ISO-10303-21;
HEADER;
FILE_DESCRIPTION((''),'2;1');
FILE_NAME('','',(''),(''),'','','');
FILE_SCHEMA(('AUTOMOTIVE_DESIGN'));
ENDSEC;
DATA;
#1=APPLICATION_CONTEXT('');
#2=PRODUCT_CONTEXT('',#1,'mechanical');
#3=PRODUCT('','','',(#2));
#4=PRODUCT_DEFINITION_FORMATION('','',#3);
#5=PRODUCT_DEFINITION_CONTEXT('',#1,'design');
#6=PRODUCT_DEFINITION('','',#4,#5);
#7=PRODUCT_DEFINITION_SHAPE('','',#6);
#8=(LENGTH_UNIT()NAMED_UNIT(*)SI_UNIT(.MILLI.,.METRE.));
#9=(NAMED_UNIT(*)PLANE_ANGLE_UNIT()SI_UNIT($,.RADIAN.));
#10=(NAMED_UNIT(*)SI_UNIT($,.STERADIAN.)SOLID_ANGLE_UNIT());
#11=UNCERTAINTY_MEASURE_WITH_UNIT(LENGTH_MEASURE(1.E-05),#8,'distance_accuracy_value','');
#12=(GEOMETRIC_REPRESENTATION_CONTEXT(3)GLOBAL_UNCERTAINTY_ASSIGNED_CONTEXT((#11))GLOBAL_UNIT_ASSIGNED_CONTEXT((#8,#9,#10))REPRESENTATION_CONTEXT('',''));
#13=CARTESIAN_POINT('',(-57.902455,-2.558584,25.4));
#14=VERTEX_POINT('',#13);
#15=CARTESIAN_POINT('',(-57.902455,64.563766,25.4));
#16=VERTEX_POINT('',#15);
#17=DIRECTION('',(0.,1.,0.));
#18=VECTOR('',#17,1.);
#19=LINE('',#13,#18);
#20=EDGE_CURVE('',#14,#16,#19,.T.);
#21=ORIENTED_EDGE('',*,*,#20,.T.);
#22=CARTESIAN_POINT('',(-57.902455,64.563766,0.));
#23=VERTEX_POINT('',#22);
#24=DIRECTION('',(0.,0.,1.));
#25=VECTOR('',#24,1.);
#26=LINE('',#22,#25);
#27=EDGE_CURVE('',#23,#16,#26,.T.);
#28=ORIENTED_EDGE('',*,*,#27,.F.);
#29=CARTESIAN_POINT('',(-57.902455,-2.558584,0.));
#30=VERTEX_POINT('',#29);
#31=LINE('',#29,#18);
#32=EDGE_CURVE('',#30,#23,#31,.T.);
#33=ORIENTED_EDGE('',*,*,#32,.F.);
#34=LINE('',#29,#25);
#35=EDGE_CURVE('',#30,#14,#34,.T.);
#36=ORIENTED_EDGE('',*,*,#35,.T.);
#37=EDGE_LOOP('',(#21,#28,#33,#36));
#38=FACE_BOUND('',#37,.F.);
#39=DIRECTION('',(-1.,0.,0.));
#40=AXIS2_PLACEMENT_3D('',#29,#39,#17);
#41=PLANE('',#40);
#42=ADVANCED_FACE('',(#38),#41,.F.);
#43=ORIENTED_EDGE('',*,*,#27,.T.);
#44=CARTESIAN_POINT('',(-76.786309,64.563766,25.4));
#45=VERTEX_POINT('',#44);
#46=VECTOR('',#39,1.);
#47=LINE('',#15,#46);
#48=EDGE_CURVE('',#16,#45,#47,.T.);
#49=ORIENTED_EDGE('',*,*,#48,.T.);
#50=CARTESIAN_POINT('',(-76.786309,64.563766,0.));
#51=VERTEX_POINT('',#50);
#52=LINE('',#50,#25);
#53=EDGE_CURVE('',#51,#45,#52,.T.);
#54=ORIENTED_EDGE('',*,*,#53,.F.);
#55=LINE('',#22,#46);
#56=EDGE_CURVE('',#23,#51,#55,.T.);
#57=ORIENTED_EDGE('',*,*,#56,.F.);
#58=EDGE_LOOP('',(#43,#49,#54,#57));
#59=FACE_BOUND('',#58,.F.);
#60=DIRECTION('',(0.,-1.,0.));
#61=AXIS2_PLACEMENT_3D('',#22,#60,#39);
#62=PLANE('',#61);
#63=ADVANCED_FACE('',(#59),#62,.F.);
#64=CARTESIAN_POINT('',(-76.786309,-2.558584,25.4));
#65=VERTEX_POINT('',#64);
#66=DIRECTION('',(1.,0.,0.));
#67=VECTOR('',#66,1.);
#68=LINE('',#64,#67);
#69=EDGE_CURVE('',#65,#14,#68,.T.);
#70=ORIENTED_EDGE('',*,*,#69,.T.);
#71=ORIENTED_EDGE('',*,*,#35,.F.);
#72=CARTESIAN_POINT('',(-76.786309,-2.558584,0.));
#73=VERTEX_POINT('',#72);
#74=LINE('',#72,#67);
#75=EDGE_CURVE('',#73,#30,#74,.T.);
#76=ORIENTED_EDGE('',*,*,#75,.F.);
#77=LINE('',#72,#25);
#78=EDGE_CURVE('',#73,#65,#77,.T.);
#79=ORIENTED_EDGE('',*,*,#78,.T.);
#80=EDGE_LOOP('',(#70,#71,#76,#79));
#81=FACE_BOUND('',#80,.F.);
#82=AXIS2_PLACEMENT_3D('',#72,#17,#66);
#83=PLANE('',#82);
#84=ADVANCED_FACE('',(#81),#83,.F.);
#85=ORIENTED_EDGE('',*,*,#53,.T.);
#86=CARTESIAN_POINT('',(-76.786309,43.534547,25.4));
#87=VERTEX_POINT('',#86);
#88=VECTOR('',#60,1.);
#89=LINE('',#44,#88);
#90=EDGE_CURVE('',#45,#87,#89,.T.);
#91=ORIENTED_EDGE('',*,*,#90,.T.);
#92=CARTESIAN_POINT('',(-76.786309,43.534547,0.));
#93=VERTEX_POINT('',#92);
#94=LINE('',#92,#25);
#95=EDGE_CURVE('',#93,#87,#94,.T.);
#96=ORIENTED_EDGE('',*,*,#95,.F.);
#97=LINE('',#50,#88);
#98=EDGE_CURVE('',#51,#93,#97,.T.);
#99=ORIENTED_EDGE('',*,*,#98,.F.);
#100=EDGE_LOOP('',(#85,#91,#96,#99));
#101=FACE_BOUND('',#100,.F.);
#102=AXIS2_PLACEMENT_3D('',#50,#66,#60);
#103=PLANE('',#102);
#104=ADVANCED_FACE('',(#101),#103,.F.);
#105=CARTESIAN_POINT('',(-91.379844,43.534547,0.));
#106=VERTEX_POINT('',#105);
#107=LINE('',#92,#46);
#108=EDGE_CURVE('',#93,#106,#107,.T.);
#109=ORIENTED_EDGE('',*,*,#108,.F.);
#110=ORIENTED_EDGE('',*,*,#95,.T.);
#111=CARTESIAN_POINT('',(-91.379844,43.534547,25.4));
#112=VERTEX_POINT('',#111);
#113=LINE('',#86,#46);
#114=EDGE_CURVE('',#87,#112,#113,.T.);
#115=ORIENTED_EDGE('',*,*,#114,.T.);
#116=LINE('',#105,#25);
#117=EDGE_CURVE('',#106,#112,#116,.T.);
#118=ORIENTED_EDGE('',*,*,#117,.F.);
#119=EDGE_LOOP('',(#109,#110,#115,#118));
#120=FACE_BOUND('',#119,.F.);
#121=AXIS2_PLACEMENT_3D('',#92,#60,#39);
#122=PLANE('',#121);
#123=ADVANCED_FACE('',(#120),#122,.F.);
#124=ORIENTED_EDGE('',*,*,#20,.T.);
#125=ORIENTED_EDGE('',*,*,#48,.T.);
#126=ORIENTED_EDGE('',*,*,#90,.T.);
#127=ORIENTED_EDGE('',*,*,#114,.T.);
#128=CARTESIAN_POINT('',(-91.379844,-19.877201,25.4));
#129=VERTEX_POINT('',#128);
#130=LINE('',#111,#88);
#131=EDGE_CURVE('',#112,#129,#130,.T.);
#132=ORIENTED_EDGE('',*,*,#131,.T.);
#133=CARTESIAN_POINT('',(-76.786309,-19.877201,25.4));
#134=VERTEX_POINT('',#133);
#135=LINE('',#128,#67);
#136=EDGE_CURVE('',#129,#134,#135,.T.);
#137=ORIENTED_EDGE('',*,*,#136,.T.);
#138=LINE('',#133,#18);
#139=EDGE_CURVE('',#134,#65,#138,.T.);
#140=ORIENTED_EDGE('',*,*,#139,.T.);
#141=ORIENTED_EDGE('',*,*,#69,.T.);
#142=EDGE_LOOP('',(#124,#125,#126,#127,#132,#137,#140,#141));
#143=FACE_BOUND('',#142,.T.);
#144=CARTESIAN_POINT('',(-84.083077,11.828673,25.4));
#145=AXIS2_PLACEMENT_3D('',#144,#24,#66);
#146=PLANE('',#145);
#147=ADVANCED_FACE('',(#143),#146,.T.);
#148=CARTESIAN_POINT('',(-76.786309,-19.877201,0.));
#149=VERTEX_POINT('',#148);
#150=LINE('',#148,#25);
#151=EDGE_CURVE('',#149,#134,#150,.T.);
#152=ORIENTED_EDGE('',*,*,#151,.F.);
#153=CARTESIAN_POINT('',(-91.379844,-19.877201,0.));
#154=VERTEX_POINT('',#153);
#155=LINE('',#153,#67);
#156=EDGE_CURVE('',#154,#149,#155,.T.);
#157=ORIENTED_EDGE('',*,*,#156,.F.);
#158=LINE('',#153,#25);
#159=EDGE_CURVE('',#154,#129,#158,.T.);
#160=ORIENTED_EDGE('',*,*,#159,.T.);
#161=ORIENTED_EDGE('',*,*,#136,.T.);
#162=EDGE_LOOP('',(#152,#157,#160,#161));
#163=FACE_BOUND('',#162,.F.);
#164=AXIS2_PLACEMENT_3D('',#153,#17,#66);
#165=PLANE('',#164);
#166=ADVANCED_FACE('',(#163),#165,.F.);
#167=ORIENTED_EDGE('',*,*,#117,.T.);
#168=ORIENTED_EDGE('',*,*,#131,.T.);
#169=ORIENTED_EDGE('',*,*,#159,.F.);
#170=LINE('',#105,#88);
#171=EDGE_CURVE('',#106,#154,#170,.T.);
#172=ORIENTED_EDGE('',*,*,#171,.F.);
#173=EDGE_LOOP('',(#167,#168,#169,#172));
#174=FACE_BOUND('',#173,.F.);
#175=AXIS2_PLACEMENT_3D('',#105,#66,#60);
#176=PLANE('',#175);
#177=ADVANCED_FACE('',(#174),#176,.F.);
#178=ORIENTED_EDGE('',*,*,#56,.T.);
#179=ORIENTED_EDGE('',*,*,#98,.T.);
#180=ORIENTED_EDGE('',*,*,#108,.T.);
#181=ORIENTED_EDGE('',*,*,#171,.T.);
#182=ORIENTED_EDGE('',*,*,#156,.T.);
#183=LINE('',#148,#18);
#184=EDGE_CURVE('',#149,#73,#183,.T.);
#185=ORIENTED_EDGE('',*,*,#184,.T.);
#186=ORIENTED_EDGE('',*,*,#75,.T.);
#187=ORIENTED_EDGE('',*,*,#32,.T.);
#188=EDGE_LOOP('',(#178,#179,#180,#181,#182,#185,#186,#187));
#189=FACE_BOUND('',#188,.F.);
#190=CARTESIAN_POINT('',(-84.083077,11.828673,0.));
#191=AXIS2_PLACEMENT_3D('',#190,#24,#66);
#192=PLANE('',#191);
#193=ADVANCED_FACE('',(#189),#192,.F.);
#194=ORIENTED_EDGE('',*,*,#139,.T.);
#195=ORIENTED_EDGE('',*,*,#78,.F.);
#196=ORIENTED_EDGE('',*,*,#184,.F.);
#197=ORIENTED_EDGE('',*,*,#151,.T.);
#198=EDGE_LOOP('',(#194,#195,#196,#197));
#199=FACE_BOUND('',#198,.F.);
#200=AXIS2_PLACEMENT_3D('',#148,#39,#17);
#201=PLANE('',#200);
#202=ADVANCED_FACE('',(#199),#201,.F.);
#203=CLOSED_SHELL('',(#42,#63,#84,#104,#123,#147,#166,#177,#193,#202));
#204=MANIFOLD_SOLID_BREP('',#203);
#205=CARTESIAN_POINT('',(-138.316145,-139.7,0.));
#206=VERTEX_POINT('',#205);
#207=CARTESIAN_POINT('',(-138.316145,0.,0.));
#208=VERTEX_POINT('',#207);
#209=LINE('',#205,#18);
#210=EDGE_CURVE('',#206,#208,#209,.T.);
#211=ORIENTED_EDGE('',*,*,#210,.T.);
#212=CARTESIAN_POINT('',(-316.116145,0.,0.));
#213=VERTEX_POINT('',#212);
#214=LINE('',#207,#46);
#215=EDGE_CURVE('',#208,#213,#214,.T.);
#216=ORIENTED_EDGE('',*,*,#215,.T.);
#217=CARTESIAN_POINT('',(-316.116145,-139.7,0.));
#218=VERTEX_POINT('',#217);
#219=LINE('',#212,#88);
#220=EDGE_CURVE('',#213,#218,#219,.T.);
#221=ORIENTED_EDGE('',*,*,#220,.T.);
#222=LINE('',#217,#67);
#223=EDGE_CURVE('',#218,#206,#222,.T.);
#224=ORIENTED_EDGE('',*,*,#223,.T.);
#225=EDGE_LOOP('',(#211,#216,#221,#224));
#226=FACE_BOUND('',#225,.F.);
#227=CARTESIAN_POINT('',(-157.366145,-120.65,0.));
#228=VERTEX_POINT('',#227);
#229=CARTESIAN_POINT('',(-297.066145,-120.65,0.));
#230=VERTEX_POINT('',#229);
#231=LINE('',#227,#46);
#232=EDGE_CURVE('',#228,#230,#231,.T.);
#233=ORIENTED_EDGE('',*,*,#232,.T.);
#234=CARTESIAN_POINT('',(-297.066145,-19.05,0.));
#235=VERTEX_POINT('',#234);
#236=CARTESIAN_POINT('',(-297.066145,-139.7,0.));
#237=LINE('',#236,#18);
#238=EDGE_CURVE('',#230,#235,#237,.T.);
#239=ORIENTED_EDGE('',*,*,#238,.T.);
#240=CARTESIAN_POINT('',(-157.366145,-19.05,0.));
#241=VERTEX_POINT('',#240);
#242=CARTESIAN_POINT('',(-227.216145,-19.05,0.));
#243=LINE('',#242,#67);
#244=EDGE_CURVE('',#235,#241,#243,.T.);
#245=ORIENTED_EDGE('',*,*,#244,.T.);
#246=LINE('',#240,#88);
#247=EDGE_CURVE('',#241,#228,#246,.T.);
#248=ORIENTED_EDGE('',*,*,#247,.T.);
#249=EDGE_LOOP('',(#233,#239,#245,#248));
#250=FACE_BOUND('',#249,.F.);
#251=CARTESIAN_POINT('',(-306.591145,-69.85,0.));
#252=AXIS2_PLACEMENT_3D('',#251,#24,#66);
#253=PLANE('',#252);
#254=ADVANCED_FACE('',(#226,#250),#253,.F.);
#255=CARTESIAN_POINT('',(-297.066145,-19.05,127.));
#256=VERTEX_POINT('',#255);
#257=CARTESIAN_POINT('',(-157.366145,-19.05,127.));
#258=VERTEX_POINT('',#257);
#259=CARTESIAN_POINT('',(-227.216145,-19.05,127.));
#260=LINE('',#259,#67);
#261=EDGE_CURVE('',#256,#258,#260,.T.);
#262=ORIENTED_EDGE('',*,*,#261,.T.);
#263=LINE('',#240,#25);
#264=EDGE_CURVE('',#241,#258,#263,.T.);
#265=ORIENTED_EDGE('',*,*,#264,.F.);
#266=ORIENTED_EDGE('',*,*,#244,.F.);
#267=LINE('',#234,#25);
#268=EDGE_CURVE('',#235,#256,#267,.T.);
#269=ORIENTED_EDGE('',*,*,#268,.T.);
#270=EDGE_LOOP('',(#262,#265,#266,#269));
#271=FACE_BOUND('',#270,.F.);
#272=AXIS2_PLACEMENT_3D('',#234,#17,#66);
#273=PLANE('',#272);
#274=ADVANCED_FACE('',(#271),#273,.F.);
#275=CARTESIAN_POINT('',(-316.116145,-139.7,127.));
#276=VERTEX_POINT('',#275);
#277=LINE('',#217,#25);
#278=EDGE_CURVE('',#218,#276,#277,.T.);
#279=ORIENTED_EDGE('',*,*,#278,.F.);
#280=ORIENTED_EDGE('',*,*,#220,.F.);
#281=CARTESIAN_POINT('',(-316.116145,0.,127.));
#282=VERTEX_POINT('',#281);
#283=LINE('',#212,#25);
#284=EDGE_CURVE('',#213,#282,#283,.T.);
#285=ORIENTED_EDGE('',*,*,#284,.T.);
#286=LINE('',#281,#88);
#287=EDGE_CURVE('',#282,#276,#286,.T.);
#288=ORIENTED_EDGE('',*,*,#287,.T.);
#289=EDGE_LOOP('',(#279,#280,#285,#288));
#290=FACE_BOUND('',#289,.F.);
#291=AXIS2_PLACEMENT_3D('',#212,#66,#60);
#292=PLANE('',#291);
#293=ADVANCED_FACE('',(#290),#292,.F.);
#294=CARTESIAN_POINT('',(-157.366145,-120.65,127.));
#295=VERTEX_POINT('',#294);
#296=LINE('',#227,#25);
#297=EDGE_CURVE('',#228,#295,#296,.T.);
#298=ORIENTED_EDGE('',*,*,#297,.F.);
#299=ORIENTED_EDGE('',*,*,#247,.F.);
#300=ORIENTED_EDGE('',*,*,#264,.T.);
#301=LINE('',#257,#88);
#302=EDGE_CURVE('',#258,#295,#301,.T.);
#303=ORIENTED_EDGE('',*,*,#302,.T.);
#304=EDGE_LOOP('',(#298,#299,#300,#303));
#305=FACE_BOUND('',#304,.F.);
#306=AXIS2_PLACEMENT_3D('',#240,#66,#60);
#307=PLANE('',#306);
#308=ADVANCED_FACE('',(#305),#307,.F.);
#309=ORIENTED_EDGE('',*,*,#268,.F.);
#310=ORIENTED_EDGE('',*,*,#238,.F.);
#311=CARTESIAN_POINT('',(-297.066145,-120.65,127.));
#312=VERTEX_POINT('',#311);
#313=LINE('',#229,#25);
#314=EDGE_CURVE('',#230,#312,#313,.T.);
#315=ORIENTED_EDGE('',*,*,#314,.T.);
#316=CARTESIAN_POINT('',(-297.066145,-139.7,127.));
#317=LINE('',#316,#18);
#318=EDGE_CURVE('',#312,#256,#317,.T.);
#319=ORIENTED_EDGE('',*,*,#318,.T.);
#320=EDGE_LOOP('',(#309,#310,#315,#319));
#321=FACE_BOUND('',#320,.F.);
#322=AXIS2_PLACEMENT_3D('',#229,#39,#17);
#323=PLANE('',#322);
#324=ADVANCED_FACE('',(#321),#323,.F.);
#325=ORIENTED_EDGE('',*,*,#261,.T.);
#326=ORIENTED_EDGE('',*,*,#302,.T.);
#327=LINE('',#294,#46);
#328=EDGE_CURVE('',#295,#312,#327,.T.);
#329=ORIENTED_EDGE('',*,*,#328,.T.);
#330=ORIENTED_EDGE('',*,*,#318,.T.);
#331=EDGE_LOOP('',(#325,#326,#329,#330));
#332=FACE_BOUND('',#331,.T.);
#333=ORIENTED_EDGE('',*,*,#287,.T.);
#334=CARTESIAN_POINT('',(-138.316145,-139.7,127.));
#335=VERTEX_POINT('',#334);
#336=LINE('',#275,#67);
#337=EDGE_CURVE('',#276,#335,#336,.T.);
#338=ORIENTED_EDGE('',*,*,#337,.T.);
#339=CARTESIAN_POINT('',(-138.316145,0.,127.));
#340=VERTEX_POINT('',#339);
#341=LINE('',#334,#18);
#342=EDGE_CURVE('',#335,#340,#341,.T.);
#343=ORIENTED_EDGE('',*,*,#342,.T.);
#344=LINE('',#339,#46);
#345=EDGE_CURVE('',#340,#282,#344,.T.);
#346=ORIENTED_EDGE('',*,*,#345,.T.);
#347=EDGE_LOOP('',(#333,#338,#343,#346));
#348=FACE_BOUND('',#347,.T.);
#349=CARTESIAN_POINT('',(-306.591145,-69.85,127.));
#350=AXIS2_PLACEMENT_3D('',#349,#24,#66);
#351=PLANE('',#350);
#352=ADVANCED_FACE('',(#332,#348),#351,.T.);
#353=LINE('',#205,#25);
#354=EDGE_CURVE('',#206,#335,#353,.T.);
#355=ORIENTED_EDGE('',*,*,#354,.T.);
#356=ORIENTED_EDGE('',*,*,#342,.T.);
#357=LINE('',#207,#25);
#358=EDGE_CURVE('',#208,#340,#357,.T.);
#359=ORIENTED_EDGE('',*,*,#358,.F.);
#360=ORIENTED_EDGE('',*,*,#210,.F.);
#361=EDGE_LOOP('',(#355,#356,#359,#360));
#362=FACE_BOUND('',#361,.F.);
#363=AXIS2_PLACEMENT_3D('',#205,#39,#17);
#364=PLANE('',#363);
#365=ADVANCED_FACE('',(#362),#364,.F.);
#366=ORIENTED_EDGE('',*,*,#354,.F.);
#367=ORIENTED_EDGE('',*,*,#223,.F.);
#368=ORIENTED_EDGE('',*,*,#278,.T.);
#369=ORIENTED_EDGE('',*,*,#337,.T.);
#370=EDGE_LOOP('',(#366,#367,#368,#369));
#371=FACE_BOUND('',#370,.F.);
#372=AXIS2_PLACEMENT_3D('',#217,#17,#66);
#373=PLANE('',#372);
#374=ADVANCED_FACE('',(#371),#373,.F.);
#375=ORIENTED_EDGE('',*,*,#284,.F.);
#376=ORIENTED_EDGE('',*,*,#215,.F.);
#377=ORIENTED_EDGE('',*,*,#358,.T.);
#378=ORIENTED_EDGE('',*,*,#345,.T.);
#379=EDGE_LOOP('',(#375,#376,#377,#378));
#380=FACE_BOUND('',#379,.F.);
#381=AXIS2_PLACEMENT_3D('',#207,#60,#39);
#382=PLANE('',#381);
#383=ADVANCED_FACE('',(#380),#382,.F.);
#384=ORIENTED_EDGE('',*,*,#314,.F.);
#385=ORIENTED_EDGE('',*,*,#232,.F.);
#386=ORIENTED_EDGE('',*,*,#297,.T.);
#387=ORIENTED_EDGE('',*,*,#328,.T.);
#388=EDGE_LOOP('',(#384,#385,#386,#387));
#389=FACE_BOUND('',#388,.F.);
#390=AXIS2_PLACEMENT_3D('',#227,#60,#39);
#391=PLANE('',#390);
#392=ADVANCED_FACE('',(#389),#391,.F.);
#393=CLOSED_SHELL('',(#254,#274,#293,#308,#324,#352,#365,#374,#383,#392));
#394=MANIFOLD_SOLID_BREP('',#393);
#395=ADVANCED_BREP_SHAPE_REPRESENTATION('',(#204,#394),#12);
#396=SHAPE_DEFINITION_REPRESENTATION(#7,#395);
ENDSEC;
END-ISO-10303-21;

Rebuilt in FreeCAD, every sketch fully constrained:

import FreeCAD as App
import Part
import Sketcher
from FreeCAD import Vector
Q = App.Units.Quantity

doc = App.newDocument("Part")
body = doc.addObject("PartDesign::Body", "Body")

# Sketch on XY plane
sketch1 = doc.addObject("Sketcher::SketchObject", "Sketch")
body.addObject(sketch1)
sketch1.AttachmentSupport = (doc.XY_Plane, [""])
sketch1.MapMode = "FlatFace"
sketch1.addGeometry([
    Part.LineSegment(Vector(-316, 0, 0), Vector(-316, -140, 0)),  # 0
    Part.LineSegment(Vector(-316, -140, 0), Vector(-138, -140, 0)),  # 1
    Part.LineSegment(Vector(-138, -140, 0), Vector(-138, 0, 0)),  # 2
    Part.LineSegment(Vector(-138, 0, 0), Vector(-316, 0, 0)),  # 3
    Part.LineSegment(Vector(-297, -121, 0), Vector(-297, -19, 0)),  # 4
    Part.LineSegment(Vector(-297, -19, 0), Vector(-157, -19, 0)),  # 5
    Part.LineSegment(Vector(-157, -19, 0), Vector(-157, -121, 0)),  # 6
    Part.LineSegment(Vector(-157, -121, 0), Vector(-297, -121, 0)),  # 7
], False)
sketch1.addConstraint([
    Sketcher.Constraint("Coincident", 0, 2, 1, 1),
    Sketcher.Constraint("Coincident", 1, 2, 2, 1),
    Sketcher.Constraint("Coincident", 2, 2, 3, 1),
    Sketcher.Constraint("Coincident", 3, 2, 0, 1),
    Sketcher.Constraint("Coincident", 4, 2, 5, 1),
    Sketcher.Constraint("Coincident", 5, 2, 6, 1),
    Sketcher.Constraint("Coincident", 6, 2, 7, 1),
    Sketcher.Constraint("Coincident", 7, 2, 4, 1),
    Sketcher.Constraint("Vertical", 0),
    Sketcher.Constraint("Horizontal", 1),
    Sketcher.Constraint("Vertical", 2),
    Sketcher.Constraint("Horizontal", 3),
    Sketcher.Constraint("Vertical", 4),
    Sketcher.Constraint("Horizontal", 5),
    Sketcher.Constraint("Vertical", 6),
    Sketcher.Constraint("Horizontal", 7),
    Sketcher.Constraint("PointOnObject", 2, 2, -1),
    Sketcher.Constraint("Equal", 7, 0),
    Sketcher.Constraint("DistanceX", 1, 1, 1, 2, Q("7 in")),
    Sketcher.Constraint("DistanceY", 4, 1, 4, 2, Q("4 in")),
    Sketcher.Constraint("DistanceX", 5, 1, 5, 2, Q("5.5 in")),
    Sketcher.Constraint("DistanceY", 4, 2, -1, 1, Q("0.75 in")),
    Sketcher.Constraint("DistanceX", 3, 2, 4, 2, Q("0.75 in")),
    Sketcher.Constraint("DistanceX", 0, 2, -1, 1, 316.116145),
])
pad1 = doc.addObject("PartDesign::Pad", "Pad")
body.addObject(pad1)
pad1.Profile = sketch1
pad1.Length = Q("5 in")
body2 = doc.addObject("PartDesign::Body", "Body001")

# Sketch on XY plane
sketch2 = doc.addObject("Sketcher::SketchObject", "Sketch001")
body2.addObject(sketch2)
sketch2.AttachmentSupport = (doc.getObject("XY_Plane001"), [""])
sketch2.MapMode = "FlatFace"
sketch2.addGeometry([
    Part.LineSegment(Vector(-77, 44, 0), Vector(-91, 44, 0)),  # 0
    Part.LineSegment(Vector(-91, 44, 0), Vector(-91, -20, 0)),  # 1
    Part.LineSegment(Vector(-91, -20, 0), Vector(-77, -20, 0)),  # 2
    Part.LineSegment(Vector(-77, -20, 0), Vector(-77, -3, 0)),  # 3
    Part.LineSegment(Vector(-77, -3, 0), Vector(-58, -3, 0)),  # 4
    Part.LineSegment(Vector(-58, -3, 0), Vector(-58, 65, 0)),  # 5
    Part.LineSegment(Vector(-58, 65, 0), Vector(-77, 65, 0)),  # 6
    Part.LineSegment(Vector(-77, 65, 0), Vector(-77, 44, 0)),  # 7
], False)
sketch2.addConstraint([
    Sketcher.Constraint("Coincident", 0, 2, 1, 1),
    Sketcher.Constraint("Coincident", 1, 2, 2, 1),
    Sketcher.Constraint("Coincident", 2, 2, 3, 1),
    Sketcher.Constraint("Coincident", 3, 2, 4, 1),
    Sketcher.Constraint("Coincident", 4, 2, 5, 1),
    Sketcher.Constraint("Coincident", 5, 2, 6, 1),
    Sketcher.Constraint("Coincident", 6, 2, 7, 1),
    Sketcher.Constraint("Coincident", 7, 2, 0, 1),
    Sketcher.Constraint("Horizontal", 0),
    Sketcher.Constraint("Vertical", 1),
    Sketcher.Constraint("Horizontal", 2),
    Sketcher.Constraint("Vertical", 3),
    Sketcher.Constraint("Horizontal", 4),
    Sketcher.Constraint("Vertical", 5),
    Sketcher.Constraint("Horizontal", 6),
    Sketcher.Constraint("Vertical", 7),
    Sketcher.Constraint("Vertical", 3, 2, 6, 2),
    Sketcher.Constraint("DistanceY", 1, 2, 1, 1, 63.411748),
    Sketcher.Constraint("DistanceY", 5, 1, 5, 2, 67.12235),
    Sketcher.Constraint("DistanceY", 7, 2, 7, 1, 21.029219),
    Sketcher.Constraint("DistanceY", 1, 2, -1, 1, 19.877201),
    Sketcher.Constraint("DistanceX", 0, 2, 0, 1, 14.593535),
    Sketcher.Constraint("DistanceX", 4, 1, 4, 2, 18.883854),
    Sketcher.Constraint("DistanceX", 2, 2, -1, 1, 76.786309),
])
pad2 = doc.addObject("PartDesign::Pad", "Pad001")
body2.addObject(pad2)
pad2.Profile = sketch2
pad2.Length = Q("1 in")

doc.recompute()
